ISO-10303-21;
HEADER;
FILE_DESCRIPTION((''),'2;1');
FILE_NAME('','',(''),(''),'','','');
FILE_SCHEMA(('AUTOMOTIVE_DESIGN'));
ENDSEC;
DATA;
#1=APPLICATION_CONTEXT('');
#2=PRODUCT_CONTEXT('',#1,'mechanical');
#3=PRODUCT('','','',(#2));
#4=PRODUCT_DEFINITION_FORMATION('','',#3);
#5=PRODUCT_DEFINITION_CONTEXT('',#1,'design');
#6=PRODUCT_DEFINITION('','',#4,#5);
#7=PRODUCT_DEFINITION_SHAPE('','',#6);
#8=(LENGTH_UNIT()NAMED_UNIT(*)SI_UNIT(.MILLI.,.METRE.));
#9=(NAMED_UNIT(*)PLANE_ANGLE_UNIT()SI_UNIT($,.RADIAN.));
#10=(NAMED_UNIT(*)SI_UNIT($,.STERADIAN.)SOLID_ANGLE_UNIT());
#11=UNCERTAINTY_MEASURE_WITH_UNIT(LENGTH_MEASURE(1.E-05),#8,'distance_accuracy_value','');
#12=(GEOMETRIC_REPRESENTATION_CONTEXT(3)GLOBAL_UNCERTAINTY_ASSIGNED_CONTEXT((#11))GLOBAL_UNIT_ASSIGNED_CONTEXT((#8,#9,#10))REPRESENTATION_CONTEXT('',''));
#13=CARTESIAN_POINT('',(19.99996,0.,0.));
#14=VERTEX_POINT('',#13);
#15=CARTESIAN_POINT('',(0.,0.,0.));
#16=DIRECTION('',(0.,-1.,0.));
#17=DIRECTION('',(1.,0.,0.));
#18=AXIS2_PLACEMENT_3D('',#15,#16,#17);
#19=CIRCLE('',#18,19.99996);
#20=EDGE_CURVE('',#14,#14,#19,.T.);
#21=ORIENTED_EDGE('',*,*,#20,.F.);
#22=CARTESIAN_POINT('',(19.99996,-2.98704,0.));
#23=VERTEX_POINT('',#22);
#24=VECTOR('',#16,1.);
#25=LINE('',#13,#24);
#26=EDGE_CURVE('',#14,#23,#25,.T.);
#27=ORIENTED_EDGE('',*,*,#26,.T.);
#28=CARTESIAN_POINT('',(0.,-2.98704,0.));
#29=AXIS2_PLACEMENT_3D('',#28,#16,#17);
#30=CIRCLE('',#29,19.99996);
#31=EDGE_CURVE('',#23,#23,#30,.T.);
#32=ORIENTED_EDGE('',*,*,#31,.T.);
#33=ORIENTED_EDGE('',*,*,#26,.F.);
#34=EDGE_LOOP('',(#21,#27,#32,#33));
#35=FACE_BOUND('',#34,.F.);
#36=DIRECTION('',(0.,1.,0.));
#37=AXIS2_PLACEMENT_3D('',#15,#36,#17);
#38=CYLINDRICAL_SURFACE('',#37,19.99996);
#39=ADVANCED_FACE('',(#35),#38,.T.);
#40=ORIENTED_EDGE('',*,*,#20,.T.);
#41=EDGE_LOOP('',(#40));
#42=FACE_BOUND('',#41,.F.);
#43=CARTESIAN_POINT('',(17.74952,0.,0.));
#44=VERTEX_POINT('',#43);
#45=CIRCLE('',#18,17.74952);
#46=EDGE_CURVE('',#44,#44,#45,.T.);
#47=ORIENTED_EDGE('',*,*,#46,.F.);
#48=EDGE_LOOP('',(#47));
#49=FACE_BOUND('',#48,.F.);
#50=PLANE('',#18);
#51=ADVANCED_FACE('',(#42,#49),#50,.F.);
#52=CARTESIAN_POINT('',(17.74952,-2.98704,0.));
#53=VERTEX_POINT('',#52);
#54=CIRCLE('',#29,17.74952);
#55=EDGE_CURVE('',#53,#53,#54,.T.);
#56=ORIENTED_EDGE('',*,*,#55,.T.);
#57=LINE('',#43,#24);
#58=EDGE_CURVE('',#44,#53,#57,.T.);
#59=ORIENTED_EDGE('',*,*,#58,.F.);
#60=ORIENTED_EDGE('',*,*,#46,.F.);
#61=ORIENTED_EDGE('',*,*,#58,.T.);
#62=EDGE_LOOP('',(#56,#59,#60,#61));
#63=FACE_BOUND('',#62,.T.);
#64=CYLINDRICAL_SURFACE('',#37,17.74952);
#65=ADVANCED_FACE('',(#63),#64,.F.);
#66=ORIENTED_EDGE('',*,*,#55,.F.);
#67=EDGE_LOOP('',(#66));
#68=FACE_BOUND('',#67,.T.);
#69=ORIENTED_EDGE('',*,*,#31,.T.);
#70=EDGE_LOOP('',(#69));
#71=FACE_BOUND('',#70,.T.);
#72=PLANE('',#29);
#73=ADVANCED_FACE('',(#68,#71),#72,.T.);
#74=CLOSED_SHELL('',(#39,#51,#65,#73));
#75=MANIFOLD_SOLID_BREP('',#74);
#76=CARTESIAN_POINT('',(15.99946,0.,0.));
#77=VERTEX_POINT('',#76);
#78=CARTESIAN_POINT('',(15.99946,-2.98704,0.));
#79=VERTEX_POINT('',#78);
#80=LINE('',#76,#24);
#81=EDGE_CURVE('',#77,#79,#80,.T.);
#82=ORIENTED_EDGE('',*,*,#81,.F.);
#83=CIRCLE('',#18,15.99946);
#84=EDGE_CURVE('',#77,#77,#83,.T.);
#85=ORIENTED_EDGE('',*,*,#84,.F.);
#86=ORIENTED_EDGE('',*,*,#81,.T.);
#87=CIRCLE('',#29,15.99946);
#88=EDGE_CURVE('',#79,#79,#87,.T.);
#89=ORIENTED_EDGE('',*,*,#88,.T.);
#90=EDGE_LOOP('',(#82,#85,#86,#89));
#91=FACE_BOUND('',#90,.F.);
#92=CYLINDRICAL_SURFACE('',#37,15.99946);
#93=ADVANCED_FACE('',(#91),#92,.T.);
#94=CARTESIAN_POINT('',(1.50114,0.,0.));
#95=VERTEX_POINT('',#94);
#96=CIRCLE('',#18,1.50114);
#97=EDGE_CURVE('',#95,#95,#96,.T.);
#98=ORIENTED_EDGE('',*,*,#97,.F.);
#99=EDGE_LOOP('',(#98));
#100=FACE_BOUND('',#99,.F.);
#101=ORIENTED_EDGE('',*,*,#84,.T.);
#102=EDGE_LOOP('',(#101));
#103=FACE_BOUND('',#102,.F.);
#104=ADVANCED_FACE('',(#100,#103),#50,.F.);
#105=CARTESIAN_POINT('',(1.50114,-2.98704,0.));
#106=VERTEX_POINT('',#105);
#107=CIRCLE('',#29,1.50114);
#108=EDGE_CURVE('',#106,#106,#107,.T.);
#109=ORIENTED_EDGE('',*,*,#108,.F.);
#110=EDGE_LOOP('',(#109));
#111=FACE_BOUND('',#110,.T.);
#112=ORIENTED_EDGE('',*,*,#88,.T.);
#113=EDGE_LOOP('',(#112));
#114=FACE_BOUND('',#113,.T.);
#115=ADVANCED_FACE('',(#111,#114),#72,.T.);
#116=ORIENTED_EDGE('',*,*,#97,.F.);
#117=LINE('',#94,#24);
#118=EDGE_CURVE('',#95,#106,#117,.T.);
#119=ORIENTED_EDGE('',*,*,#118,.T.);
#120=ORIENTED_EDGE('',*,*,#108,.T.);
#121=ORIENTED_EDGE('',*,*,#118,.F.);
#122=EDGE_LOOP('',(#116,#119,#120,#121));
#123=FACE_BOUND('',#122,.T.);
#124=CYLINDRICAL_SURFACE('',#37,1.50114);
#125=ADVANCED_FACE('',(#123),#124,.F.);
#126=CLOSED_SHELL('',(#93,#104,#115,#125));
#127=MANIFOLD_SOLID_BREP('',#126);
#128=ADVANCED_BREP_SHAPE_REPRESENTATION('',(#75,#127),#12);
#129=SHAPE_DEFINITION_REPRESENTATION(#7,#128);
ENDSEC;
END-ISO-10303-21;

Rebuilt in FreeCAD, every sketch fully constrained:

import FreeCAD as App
import Part
import Sketcher
Q = App.Units.Quantity

doc = App.newDocument("Part")
body = doc.addObject("PartDesign::Body", "Body")

# Sketch on XZ plane
sketch1 = body.newObject("Sketcher::SketchObject", "Sketch")
sketch1.AttachmentSupport = (doc.getObject("XZ_Plane"), [""])
sketch1.MapMode = "FlatFace"
sketch1.addGeometry([
    Part.Circle(App.Vector(0, 0, 0), App.Vector(0, 0, 1), 20),
    Part.Circle(App.Vector(0, 0, 0), App.Vector(0, 0, 1), 18),
], False)
sketch1.addConstraint([
    Sketcher.Constraint("Coincident", 0, 3, -1, 1),
    Sketcher.Constraint("Coincident", 1, 3, -1, 1),
    Sketcher.Constraint("Diameter", 0, Q("39.99992 mm")),
    Sketcher.Constraint("Diameter", 1, Q("35.49904 mm")),
])
pad1 = body.newObject("PartDesign::Pad", "Pad")
pad1.Profile = sketch1
pad1.Length = 2.98704
body2 = doc.addObject("PartDesign::Body", "Body001")

# Sketch on XZ plane
sketch2 = body2.newObject("Sketcher::SketchObject", "Sketch001")
sketch2.AttachmentSupport = (doc.getObject("XZ_Plane001"), [""])
sketch2.MapMode = "FlatFace"
sketch2.addGeometry([
    Part.Circle(App.Vector(0, 0, 0), App.Vector(0, 0, 1), 16),
    Part.Circle(App.Vector(0, 0, 0), App.Vector(0, 0, 1), 1.5),
], False)
sketch2.addConstraint([
    Sketcher.Constraint("Coincident", 0, 3, -1, 1),
    Sketcher.Constraint("Coincident", 1, 3, -1, 1),
    Sketcher.Constraint("Diameter", 0, Q("31.99892 mm")),
    Sketcher.Constraint("Diameter", 1, Q("3.00228 mm")),
])
pad2 = body2.newObject("PartDesign::Pad", "Pad001")
pad2.Profile = sketch2
pad2.Length = 2.98704

doc.recompute()
